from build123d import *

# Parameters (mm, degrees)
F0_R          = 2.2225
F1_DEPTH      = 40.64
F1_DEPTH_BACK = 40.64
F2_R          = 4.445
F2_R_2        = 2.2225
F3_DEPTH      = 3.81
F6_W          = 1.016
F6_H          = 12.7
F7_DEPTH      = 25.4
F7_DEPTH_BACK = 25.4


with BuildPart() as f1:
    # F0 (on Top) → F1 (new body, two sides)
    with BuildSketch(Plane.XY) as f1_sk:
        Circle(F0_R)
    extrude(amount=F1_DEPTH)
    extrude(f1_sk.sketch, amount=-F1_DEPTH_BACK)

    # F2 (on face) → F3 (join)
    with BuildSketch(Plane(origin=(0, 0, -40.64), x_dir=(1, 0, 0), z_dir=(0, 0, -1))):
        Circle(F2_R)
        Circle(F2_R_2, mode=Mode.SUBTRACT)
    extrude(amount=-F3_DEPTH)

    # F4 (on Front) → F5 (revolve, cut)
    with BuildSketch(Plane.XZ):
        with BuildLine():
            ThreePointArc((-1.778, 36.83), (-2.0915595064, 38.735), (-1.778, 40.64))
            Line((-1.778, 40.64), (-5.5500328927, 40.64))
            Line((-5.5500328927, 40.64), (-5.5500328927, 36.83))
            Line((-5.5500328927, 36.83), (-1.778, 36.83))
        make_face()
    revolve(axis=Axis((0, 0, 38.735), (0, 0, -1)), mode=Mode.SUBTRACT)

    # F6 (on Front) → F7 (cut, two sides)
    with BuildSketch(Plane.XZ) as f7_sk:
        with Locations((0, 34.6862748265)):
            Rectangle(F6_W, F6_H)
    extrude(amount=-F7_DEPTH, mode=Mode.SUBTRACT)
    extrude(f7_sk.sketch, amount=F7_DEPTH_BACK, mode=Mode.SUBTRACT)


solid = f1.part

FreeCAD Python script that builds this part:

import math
import FreeCAD as App
import Part
import Sketcher

V = App.Vector
Q = App.Units.Quantity

doc = App.newDocument("Part")
params = doc.addObject("Spreadsheet::Sheet", "Params")
for row, (alias, value) in enumerate([
    ("sketch1_diameter", "0.175 in"),
    ("pad1_length", "1.6 in"),
    ("pad1_length2", "1.6 in"),
    ("sketch2_diameter", "0.35 in"),
    ("sketch2_diameter2", "0.175 in"),
    ("pad2_length", "0.15 in"),
    ("sketch3_radius", "0.234 in"),
    ("sketch3_height", "0.15 in"),
    ("groove_angle", "360 deg"),
    ("sketch4_height", "0.5 in"),
    ("sketch4_width", "0.04 in"),
], start=1):
    params.set(f"A{row}", alias)
    params.set(f"B{row}", "=" + value)
    params.setAlias(f"B{row}", alias)

body = doc.addObject("PartDesign::Body", "Body")

# Sketch on XY plane
sketch1 = body.newObject("Sketcher::SketchObject", "Sketch")
sketch1.AttachmentSupport = (doc.getObject("XY_Plane"), [""])
sketch1.MapMode = "FlatFace"
sketch1.addGeometry(Part.Circle(V(0, 0, 0), V(0, 0, 1), 2.2), False)
sketch1.addConstraint([
    Sketcher.Constraint("Coincident", 0, 3, -1, 1),
    Sketcher.Constraint("Diameter", 0, Q("0.175 in")),
])
sketch1.setExpression("Constraints[1]", "Params.sketch1_diameter")
pad1 = body.newObject("PartDesign::Pad", "Pad")
pad1.Profile = sketch1
pad1.Type = "TwoLengths"
pad1.setExpression("Length", "Params.pad1_length")
pad1.setExpression("Length2", "Params.pad1_length2")

# Sketch on XY plane
sketch2 = body.newObject("Sketcher::SketchObject", "Sketch001")
sketch2.AttachmentSupport = (doc.getObject("XY_Plane"), [""])
sketch2.MapMode = "FlatFace"
sketch2.AttachmentOffset = App.Placement(V(0, 0, -1.6 * 25.4), App.Rotation())
sketch2.addGeometry([
    Part.Circle(V(0, 0, 0), V(0, 0, 1), 4.4),
    Part.Circle(V(0, 0, 0), V(0, 0, 1), 2.2),
], False)
sketch2.addConstraint([
    Sketcher.Constraint("Coincident", 0, 3, -1, 1),
    Sketcher.Constraint("Coincident", 1, 3, -1, 1),
    Sketcher.Constraint("Diameter", 0, Q("0.35 in")),
    Sketcher.Constraint("Diameter", 1, Q("0.175 in")),
])
sketch2.setExpression("Constraints[2]", "Params.sketch2_diameter")
sketch2.setExpression("Constraints[3]", "Params.sketch2_diameter2")
pad2 = body.newObject("PartDesign::Pad", "Pad001")
pad2.Profile = sketch2
pad2.setExpression("Length", "Params.pad2_length")

# Sketch on XZ plane
sketch3 = body.newObject("Sketcher::SketchObject", "Sketch002")
sketch3.AttachmentSupport = (doc.getObject("XZ_Plane"), [""])
sketch3.MapMode = "FlatFace"
sketch3.addGeometry([
    Part.ArcOfCircle(Part.Circle(V(3.9, 38.7, 0), V(0, 0, 1), 5.9), math.radians(161), math.radians(199)),
    Part.LineSegment(V(-1.8, 40.6, 0), V(-5.6, 40.6, 0)),
    Part.LineSegment(V(-5.6, 40.6, 0), V(-5.6, 36.8, 0)),
    Part.LineSegment(V(-5.6, 36.8, 0), V(-1.8, 36.8, 0)),
], False)
sketch3.addConstraint([
    Sketcher.Constraint("Coincident", 0, 1, 1, 1),
    Sketcher.Constraint("Coincident", 1, 2, 2, 1),
    Sketcher.Constraint("Coincident", 2, 2, 3, 1),
    Sketcher.Constraint("Coincident", 3, 2, 0, 2),
    Sketcher.Constraint("Horizontal", 1),
    Sketcher.Constraint("Vertical", 2),
    Sketcher.Constraint("Horizontal", 3),
    Sketcher.Constraint("Vertical", 0, 1, 3, 2),
    Sketcher.Constraint("Radius", 0, Q("0.234 in")),
    Sketcher.Constraint("DistanceY", 2, 2, 2, 1, Q("0.15 in")),
    Sketcher.Constraint("DistanceY", -1, 1, 0, 1, Q("1.6 in")),
    Sketcher.Constraint("DistanceX", 0, 1, -1, 1, Q("0.07 in")),
    Sketcher.Constraint("DistanceX", 1, 2, 1, 1, Q("3.772033 mm")),
])
sketch3.setExpression("Constraints[8]", "Params.sketch3_radius")
sketch3.setExpression("Constraints[9]", "Params.sketch3_height")
groove = body.newObject("PartDesign::Groove", "Groove")
groove.Profile = sketch3
groove.ReferenceAxis = (sketch3, ["V_Axis"])
groove.setExpression("Angle", "Params.groove_angle")

# Sketch on XZ plane
sketch4 = body.newObject("Sketcher::SketchObject", "Sketch003")
sketch4.AttachmentSupport = (doc.getObject("XZ_Plane"), [""])
sketch4.MapMode = "FlatFace"
sketch4.addGeometry([
    Part.LineSegment(V(-0.5, 41, 0), V(-0.5, 28.3, 0)),
    Part.LineSegment(V(-0.5, 28.3, 0), V(0.5, 28.3, 0)),
    Part.LineSegment(V(0.5, 28.3, 0), V(0.5, 41, 0)),
    Part.LineSegment(V(0.5, 41, 0), V(-0.5, 41, 0)),
], False)
sketch4.addConstraint([
    Sketcher.Constraint("Coincident", 0, 2, 1, 1),
    Sketcher.Constraint("Coincident", 1, 2, 2, 1),
    Sketcher.Constraint("Coincident", 2, 2, 3, 1),
    Sketcher.Constraint("Coincident", 3, 2, 0, 1),
    Sketcher.Constraint("Vertical", 0),
    Sketcher.Constraint("Horizontal", 1),
    Sketcher.Constraint("Vertical", 2),
    Sketcher.Constraint("Horizontal", 3),
    Sketcher.Constraint("DistanceY", 0, 2, 0, 1, Q("0.5 in")),
    Sketcher.Constraint("DistanceX", 1, 1, 1, 2, Q("0.04 in")),
    Sketcher.Constraint("DistanceX", 0, 2, -1, 1, Q("0.02 in")),
    Sketcher.Constraint("DistanceY", -1, 1, 0, 2, Q("28.336275 mm")),
])
sketch4.setExpression("Constraints[8]", "Params.sketch4_height")
sketch4.setExpression("Constraints[9]", "Params.sketch4_width")
pocket1 = body.newObject("PartDesign::Pocket", "Pocket")
pocket1.Profile = sketch4
pocket1.Type = "ThroughAll"
pocket1.Midplane = True

doc.recompute()
